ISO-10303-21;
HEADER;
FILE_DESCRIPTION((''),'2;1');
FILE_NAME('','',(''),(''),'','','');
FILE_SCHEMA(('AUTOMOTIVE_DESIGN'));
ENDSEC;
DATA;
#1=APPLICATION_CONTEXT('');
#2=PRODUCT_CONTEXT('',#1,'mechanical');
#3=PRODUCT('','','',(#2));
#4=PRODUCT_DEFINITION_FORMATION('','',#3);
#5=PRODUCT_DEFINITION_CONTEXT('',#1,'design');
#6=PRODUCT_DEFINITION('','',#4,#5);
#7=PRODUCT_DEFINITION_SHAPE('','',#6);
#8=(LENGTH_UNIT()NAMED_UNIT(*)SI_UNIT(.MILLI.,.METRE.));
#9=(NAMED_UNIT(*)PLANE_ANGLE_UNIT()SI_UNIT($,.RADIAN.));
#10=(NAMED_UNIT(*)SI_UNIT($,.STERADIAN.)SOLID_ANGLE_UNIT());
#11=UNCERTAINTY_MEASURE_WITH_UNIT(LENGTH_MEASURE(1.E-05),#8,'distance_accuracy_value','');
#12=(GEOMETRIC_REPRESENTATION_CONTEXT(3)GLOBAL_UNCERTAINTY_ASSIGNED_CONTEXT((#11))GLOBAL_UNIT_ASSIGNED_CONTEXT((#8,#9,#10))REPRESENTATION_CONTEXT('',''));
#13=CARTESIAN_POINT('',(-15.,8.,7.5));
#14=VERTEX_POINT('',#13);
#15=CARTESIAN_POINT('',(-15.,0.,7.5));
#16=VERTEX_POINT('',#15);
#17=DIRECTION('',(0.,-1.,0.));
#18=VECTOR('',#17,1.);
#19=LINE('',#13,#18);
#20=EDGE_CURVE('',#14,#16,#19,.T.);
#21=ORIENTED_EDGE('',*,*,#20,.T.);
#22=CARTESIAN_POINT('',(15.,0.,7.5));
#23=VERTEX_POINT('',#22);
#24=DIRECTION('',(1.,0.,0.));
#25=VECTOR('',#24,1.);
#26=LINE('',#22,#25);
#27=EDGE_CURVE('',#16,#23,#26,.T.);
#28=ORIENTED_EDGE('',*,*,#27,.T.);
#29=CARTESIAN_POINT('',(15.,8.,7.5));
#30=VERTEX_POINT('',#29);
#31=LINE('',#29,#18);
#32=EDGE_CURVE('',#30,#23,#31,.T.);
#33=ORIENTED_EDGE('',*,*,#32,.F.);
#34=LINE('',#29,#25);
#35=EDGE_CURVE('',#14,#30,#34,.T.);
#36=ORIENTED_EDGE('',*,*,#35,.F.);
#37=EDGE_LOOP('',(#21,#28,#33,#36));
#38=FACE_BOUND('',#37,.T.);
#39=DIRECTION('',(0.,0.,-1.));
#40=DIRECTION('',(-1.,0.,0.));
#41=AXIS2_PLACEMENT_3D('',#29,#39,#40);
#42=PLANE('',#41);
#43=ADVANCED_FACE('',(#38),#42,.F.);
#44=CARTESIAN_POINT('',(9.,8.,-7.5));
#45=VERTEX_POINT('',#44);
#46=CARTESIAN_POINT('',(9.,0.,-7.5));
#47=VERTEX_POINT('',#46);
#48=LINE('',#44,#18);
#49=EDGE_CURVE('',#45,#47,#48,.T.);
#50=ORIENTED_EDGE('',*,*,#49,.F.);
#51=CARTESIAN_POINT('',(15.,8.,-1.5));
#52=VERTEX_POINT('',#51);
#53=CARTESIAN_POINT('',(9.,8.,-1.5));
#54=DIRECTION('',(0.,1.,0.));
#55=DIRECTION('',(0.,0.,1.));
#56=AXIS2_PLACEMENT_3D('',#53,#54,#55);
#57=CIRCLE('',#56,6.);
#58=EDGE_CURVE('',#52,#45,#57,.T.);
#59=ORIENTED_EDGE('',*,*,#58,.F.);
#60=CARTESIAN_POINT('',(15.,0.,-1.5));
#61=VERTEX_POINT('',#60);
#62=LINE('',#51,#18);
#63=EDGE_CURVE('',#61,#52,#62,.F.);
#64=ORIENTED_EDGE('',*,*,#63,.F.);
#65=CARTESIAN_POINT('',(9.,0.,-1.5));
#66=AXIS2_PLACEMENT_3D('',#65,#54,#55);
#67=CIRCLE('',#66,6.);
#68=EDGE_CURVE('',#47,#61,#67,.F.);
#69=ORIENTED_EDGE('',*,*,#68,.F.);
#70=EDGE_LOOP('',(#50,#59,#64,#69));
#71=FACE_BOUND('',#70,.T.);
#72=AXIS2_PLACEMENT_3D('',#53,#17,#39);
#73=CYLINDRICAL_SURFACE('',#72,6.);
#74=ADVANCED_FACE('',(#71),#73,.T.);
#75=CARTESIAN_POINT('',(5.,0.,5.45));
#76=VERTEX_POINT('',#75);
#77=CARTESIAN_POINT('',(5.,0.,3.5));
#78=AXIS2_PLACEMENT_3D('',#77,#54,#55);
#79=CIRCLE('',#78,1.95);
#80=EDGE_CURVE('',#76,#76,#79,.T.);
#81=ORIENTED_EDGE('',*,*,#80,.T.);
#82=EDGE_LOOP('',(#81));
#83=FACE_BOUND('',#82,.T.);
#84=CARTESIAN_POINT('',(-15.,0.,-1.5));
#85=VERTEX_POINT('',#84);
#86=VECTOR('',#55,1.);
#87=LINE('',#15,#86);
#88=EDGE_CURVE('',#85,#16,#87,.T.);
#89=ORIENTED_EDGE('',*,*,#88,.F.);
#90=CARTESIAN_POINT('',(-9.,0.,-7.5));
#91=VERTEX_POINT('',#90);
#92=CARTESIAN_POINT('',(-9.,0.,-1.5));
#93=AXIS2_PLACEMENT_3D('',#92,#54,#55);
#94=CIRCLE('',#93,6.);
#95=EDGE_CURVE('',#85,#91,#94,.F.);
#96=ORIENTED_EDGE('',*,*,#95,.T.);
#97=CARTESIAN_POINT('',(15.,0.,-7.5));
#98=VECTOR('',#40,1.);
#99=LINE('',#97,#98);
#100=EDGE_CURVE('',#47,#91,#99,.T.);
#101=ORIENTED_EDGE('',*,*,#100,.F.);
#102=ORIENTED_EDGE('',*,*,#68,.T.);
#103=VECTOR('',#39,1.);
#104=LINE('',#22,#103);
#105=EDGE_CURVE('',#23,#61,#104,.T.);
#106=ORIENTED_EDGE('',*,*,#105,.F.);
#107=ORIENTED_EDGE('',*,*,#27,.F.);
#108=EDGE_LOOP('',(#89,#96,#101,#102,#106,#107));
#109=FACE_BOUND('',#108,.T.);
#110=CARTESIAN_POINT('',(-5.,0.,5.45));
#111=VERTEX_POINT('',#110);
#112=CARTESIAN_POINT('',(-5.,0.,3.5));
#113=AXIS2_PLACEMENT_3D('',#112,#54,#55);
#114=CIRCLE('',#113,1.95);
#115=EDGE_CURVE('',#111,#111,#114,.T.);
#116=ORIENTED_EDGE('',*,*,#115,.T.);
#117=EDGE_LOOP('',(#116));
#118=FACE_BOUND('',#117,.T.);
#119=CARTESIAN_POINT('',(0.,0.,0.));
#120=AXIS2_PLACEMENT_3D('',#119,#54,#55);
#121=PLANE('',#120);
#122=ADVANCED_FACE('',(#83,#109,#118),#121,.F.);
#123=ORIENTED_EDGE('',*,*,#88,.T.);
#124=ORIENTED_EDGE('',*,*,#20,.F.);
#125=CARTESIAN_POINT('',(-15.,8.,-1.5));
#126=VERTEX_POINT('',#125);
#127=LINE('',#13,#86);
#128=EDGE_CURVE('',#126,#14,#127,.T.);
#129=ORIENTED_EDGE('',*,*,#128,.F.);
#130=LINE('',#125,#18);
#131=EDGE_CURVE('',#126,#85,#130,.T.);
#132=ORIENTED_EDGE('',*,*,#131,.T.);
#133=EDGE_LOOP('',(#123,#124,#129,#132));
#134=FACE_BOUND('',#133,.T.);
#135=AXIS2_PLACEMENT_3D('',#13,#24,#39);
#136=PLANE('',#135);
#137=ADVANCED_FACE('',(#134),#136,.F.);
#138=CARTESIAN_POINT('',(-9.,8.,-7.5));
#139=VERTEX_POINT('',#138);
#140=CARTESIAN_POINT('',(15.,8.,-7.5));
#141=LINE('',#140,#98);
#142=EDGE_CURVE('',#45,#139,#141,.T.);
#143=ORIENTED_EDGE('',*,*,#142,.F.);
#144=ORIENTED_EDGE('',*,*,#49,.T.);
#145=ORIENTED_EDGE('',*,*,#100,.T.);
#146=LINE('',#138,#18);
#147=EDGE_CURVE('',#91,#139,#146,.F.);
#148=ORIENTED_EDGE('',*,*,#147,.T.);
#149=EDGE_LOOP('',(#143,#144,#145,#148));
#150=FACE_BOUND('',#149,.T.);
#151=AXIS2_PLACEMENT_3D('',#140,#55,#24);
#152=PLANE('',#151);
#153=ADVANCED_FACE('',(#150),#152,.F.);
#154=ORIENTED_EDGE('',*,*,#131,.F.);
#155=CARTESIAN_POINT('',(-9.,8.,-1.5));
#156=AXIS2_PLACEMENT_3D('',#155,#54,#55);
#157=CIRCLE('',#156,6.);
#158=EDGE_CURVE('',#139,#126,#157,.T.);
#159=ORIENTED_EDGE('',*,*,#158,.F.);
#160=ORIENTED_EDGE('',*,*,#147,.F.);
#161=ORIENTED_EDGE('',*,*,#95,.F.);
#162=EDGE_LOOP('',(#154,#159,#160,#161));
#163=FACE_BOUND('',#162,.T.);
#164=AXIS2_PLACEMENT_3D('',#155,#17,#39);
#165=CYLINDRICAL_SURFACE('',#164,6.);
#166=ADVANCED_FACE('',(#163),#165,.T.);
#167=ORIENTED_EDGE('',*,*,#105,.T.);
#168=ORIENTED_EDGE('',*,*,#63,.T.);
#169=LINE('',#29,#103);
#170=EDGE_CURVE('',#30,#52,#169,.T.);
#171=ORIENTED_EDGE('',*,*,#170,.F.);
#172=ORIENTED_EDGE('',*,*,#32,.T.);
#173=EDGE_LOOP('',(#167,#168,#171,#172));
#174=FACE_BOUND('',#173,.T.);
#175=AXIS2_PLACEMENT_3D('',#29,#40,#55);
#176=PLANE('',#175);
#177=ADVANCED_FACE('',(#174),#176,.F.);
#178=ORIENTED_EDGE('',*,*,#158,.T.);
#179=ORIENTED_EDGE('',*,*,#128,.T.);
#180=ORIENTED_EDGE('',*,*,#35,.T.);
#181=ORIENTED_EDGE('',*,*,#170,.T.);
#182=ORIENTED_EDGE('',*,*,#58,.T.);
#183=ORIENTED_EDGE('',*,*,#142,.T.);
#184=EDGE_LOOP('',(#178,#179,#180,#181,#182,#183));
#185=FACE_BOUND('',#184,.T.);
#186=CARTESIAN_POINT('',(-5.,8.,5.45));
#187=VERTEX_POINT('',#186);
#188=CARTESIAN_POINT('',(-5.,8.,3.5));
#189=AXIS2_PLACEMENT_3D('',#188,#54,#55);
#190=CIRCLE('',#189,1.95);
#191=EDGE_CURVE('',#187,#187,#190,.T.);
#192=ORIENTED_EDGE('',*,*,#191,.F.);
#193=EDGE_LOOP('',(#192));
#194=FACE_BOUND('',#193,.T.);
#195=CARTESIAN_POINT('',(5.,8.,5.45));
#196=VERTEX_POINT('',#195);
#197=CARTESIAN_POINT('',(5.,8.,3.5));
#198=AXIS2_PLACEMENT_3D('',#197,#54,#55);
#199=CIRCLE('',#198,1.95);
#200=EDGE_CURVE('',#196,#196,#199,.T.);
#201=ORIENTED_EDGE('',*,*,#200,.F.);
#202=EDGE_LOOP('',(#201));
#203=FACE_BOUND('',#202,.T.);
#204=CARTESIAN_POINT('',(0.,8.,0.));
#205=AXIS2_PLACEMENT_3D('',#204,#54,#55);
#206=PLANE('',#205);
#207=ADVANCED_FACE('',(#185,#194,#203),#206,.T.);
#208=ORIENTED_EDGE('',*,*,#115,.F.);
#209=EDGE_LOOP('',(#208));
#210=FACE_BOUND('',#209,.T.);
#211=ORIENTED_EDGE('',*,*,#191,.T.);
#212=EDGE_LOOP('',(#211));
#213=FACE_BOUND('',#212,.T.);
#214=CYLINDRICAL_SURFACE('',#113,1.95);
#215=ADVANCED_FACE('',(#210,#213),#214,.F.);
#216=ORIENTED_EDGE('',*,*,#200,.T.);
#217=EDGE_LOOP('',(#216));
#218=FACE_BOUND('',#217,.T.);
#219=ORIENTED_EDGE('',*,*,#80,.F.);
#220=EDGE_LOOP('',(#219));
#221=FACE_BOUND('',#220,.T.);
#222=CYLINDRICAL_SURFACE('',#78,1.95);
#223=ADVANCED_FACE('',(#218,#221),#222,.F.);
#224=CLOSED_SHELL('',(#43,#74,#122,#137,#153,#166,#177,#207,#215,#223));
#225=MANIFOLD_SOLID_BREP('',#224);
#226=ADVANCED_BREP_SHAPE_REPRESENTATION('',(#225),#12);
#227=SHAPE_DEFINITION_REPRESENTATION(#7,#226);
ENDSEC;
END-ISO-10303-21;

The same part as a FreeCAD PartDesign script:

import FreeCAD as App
import Part
import Sketcher


def edges_at(feature, points):
    """Names of the edges that pass closest to the given points."""
    edges = feature.Shape.Edges
    near = lambda p: min(range(len(edges)), key=lambda i: edges[i].distToShape(Part.Vertex(*p))[0])
    return sorted({f"Edge{near(p) + 1}" for p in points})


def add_polygon(sketch, points):
    """Adds a closed chain of lines whose ends are joined by coincident constraints."""
    first, n = sketch.GeometryCount, len(points)
    for a, b in zip(points, points[1:] + points[:1]):
        sketch.addGeometry(Part.LineSegment(App.Vector(*a, 0), App.Vector(*b, 0)), False)
    for i in range(n):
        sketch.addConstraint(Sketcher.Constraint("Coincident", first + i, 2, first + (i + 1) % n, 1))

doc = App.newDocument("Part")
body = doc.addObject("PartDesign::Body", "Body")

# Sketch on XZ plane
sketch1 = body.newObject("Sketcher::SketchObject", "Sketch")
sketch1.AttachmentSupport = (doc.getObject("XZ_Plane"), [""])
sketch1.MapMode = "FlatFace"
add_polygon(sketch1, [(-15, -7.5), (-15, 7.5), (15, 7.5), (15, -7.5)])  # lines 0-3
sketch1.addConstraint(Sketcher.Constraint("Vertical", 0))
sketch1.addConstraint(Sketcher.Constraint("Horizontal", 1))
sketch1.addConstraint(Sketcher.Constraint("Vertical", 2))
sketch1.addConstraint(Sketcher.Constraint("Horizontal", 3))
sketch1.addConstraint(Sketcher.Constraint("Symmetric", 0, 2, 2, 2, -1, 1))
sketch1.addConstraint(Sketcher.Constraint("DistanceX", 1, 1, 1, 2, 30.0))
sketch1.addConstraint(Sketcher.Constraint("DistanceY", 0, 1, 0, 2, 15.0))
pad1 = body.newObject("PartDesign::Pad", "Pad")
pad1.Profile = sketch1
pad1.Length = 8
pad1.Reversed = True
doc.recompute()

fillet = body.newObject("PartDesign::Fillet", "Fillet")
fillet.Base = (pad1, edges_at(pad1, [(-15, 4, -7.5), (15, 4, -7.5)]))
fillet.Radius = 6

# Sketch on XZ plane
sketch2 = body.newObject("Sketcher::SketchObject", "Sketch001")
sketch2.AttachmentSupport = (doc.getObject("XZ_Plane"), [""])
sketch2.MapMode = "FlatFace"
sketch2.AttachmentOffset = App.Placement(App.Vector(0, 0, -8), App.Rotation())
sketch2.addGeometry(Part.Circle(App.Vector(-5, 3.5, 0), App.Vector(0, 0, 1), 1.95), False)
sketch2.addGeometry(Part.Circle(App.Vector(5, 3.5, 0), App.Vector(0, 0, 1), 1.95), False)
sketch2.addConstraint(Sketcher.Constraint("Equal", 0, 1))
sketch2.addConstraint(Sketcher.Constraint("Symmetric", 0, 3, 1, 3, -2))
sketch2.addConstraint(Sketcher.Constraint("Diameter", 0, 3.9))
sketch2.addConstraint(Sketcher.Constraint("DistanceX", 0, 3, -1, 1, 5.0))
sketch2.addConstraint(Sketcher.Constraint("DistanceY", -1, 1, 0, 3, 3.5))
pocket1 = body.newObject("PartDesign::Pocket", "Pocket")
pocket1.Profile = sketch2
pocket1.Type = "ThroughAll"
pocket1.Reversed = True

doc.recompute()
